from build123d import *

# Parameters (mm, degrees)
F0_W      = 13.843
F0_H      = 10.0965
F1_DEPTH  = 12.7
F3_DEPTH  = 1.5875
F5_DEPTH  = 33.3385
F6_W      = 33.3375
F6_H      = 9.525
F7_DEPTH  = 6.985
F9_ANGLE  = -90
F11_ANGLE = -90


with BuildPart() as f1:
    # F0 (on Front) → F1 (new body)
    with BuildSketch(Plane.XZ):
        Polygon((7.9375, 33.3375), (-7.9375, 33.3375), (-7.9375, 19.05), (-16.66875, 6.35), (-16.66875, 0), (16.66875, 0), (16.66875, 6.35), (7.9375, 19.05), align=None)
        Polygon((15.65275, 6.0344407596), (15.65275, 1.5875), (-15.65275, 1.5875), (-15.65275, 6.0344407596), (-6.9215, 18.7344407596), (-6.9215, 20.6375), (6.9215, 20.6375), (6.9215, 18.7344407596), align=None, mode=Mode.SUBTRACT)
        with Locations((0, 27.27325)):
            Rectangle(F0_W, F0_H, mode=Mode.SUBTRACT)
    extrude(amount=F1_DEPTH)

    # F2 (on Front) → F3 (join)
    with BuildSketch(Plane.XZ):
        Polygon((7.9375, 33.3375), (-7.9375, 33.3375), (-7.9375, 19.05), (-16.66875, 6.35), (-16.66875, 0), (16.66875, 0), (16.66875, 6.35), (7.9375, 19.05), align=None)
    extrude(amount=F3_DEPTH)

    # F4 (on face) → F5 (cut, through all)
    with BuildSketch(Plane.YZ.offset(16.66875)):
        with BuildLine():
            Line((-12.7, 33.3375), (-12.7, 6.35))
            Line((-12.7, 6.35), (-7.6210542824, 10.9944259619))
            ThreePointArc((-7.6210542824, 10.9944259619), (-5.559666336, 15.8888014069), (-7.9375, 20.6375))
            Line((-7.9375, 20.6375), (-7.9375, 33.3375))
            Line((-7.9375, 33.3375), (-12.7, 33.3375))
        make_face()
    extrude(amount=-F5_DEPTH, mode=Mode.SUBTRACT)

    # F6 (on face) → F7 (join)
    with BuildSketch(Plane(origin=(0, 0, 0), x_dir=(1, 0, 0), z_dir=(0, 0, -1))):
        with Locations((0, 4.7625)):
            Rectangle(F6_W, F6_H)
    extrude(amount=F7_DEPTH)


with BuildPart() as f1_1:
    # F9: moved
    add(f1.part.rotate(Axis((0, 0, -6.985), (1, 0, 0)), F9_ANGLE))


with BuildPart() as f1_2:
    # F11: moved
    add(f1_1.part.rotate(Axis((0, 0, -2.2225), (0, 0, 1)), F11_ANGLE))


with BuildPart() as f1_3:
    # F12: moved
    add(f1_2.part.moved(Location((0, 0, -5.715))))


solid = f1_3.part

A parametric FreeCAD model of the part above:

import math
import FreeCAD as App
import Part
import Sketcher
Q = App.Units.Quantity

doc = App.newDocument("Part")
body = doc.addObject("PartDesign::Body", "Body")

sketch1 = doc.addObject("Sketcher::SketchObject", "Sketch")
body.addObject(sketch1)
sketch1.AttachmentSupport = (doc.XZ_Plane, [""])
sketch1.MapMode = "FlatFace"
sketch1.addGeometry(Part.LineSegment(App.Vector(7.9, 33.3, 0), App.Vector(-7.9, 33.3, 0)), False)
sketch1.addGeometry(Part.LineSegment(App.Vector(-7.9, 33.3, 0), App.Vector(-7.9, 19.1, 0)), False)
sketch1.addGeometry(Part.LineSegment(App.Vector(-7.9, 19.1, 0), App.Vector(-16.7, 6.3, 0)), False)
sketch1.addGeometry(Part.LineSegment(App.Vector(-16.7, 6.3, 0), App.Vector(-16.7, 0, 0)), False)
sketch1.addGeometry(Part.LineSegment(App.Vector(-16.7, 0, 0), App.Vector(16.7, 0, 0)), False)
sketch1.addGeometry(Part.LineSegment(App.Vector(16.7, 0, 0), App.Vector(16.7, 6.3, 0)), False)
sketch1.addGeometry(Part.LineSegment(App.Vector(16.7, 6.3, 0), App.Vector(7.9, 19.1, 0)), False)
sketch1.addGeometry(Part.LineSegment(App.Vector(7.9, 19.1, 0), App.Vector(7.9, 33.3, 0)), False)
sketch1.addGeometry(Part.LineSegment(App.Vector(6.9, 18.7, 0), App.Vector(15.7, 6, 0)), False)
sketch1.addGeometry(Part.LineSegment(App.Vector(15.7, 6, 0), App.Vector(15.7, 1.6, 0)), False)
sketch1.addGeometry(Part.LineSegment(App.Vector(15.7, 1.6, 0), App.Vector(-15.7, 1.6, 0)), False)
sketch1.addGeometry(Part.LineSegment(App.Vector(-15.7, 1.6, 0), App.Vector(-15.7, 6, 0)), False)
sketch1.addGeometry(Part.LineSegment(App.Vector(-15.7, 6, 0), App.Vector(-6.9, 18.7, 0)), False)
sketch1.addGeometry(Part.LineSegment(App.Vector(-6.9, 18.7, 0), App.Vector(-6.9, 20.6, 0)), False)
sketch1.addGeometry(Part.LineSegment(App.Vector(-6.9, 20.6, 0), App.Vector(6.9, 20.6, 0)), False)
sketch1.addGeometry(Part.LineSegment(App.Vector(6.9, 20.6, 0), App.Vector(6.9, 18.7, 0)), False)
sketch1.addGeometry(Part.LineSegment(App.Vector(6.9, 22.2, 0), App.Vector(-6.9, 22.2, 0)), False)
sketch1.addGeometry(Part.LineSegment(App.Vector(-6.9, 22.2, 0), App.Vector(-6.9, 32.3, 0)), False)
sketch1.addGeometry(Part.LineSegment(App.Vector(-6.9, 32.3, 0), App.Vector(6.9, 32.3, 0)), False)
sketch1.addGeometry(Part.LineSegment(App.Vector(6.9, 32.3, 0), App.Vector(6.9, 22.2, 0)), False)
sketch1.addConstraint(Sketcher.Constraint("Coincident", 0, 2, 1, 1))
sketch1.addConstraint(Sketcher.Constraint("Coincident", 1, 2, 2, 1))
sketch1.addConstraint(Sketcher.Constraint("Coincident", 2, 2, 3, 1))
sketch1.addConstraint(Sketcher.Constraint("Coincident", 3, 2, 4, 1))
sketch1.addConstraint(Sketcher.Constraint("Coincident", 4, 2, 5, 1))
sketch1.addConstraint(Sketcher.Constraint("Coincident", 5, 2, 6, 1))
sketch1.addConstraint(Sketcher.Constraint("Coincident", 6, 2, 7, 1))
sketch1.addConstraint(Sketcher.Constraint("Coincident", 7, 2, 0, 1))
sketch1.addConstraint(Sketcher.Constraint("Coincident", 8, 2, 9, 1))
sketch1.addConstraint(Sketcher.Constraint("Coincident", 9, 2, 10, 1))
sketch1.addConstraint(Sketcher.Constraint("Coincident", 10, 2, 11, 1))
sketch1.addConstraint(Sketcher.Constraint("Coincident", 11, 2, 12, 1))
sketch1.addConstraint(Sketcher.Constraint("Coincident", 12, 2, 13, 1))
sketch1.addConstraint(Sketcher.Constraint("Coincident", 13, 2, 14, 1))
sketch1.addConstraint(Sketcher.Constraint("Coincident", 14, 2, 15, 1))
sketch1.addConstraint(Sketcher.Constraint("Coincident", 15, 2, 8, 1))
sketch1.addConstraint(Sketcher.Constraint("Coincident", 16, 2, 17, 1))
sketch1.addConstraint(Sketcher.Constraint("Coincident", 17, 2, 18, 1))
sketch1.addConstraint(Sketcher.Constraint("Coincident", 18, 2, 19, 1))
sketch1.addConstraint(Sketcher.Constraint("Coincident", 19, 2, 16, 1))
sketch1.addConstraint(Sketcher.Constraint("Horizontal", 0))
sketch1.addConstraint(Sketcher.Constraint("Vertical", 1))
sketch1.addConstraint(Sketcher.Constraint("Vertical", 3))
sketch1.addConstraint(Sketcher.Constraint("Horizontal", 4))
sketch1.addConstraint(Sketcher.Constraint("Vertical", 5))
sketch1.addConstraint(Sketcher.Constraint("Vertical", 7))
sketch1.addConstraint(Sketcher.Constraint("Vertical", 9))
sketch1.addConstraint(Sketcher.Constraint("Horizontal", 10))
sketch1.addConstraint(Sketcher.Constraint("Vertical", 11))
sketch1.addConstraint(Sketcher.Constraint("Vertical", 13))
sketch1.addConstraint(Sketcher.Constraint("Horizontal", 14))
sketch1.addConstraint(Sketcher.Constraint("Vertical", 15))
sketch1.addConstraint(Sketcher.Constraint("Horizontal", 16))
sketch1.addConstraint(Sketcher.Constraint("Vertical", 17))
sketch1.addConstraint(Sketcher.Constraint("Horizontal", 18))
sketch1.addConstraint(Sketcher.Constraint("Vertical", 19))
sketch1.addConstraint(Sketcher.Constraint("Symmetric", 3, 2, 4, 2, -1, 1))
sketch1.addConstraint(Sketcher.Constraint("Symmetric", 1, 2, 6, 2, -2))
sketch1.addConstraint(Sketcher.Constraint("Symmetric", 8, 2, 11, 2, -2))
sketch1.addConstraint(Sketcher.Constraint("Symmetric", 12, 2, 15, 2, -2))
sketch1.addConstraint(Sketcher.Constraint("Parallel", 6, 8))
sketch1.addConstraint(Sketcher.Constraint("Parallel", 2, 12))
sketch1.addConstraint(Sketcher.Constraint("Vertical", 13, 2, 16, 2))
sketch1.addConstraint(Sketcher.Constraint("Vertical", 15, 2, 18, 2))
sketch1.addConstraint(Sketcher.Constraint("Equal", 6, 8))
sketch1.addConstraint(Sketcher.Constraint("DistanceY", 3, 2, 3, 1, Q("0.25 in")))
sketch1.addConstraint(Sketcher.Constraint("DistanceY", 2, 2, 1, 2, Q("0.5 in")))
sketch1.addConstraint(Sketcher.Constraint("DistanceY", 13, 2, 0, 2, Q("0.5 in")))
sketch1.addConstraint(Sketcher.Constraint("DistanceX", 0, 2, 0, 1, Q("0.625 in")))
sketch1.addConstraint(Sketcher.Constraint("DistanceX", 4, 1, 4, 2, Q("1.3125 in")))
sketch1.addConstraint(Sketcher.Constraint("DistanceX", 14, 1, 14, 2, Q("0.545 in")))
sketch1.addConstraint(Sketcher.Constraint("DistanceY", 1, 2, 1, 1, Q("0.5625 in")))
sketch1.addConstraint(Sketcher.Constraint("DistanceY", 17, 2, 0, 2, Q("0.04 in")))
sketch1.addConstraint(Sketcher.Constraint("DistanceY", 17, 1, 17, 2, Q("0.3975 in")))
sketch1.addConstraint(Sketcher.Constraint("DistanceY", -1, 1, 9, 2, Q("0.0625 in")))
sketch1.addConstraint(Sketcher.Constraint("DistanceY", 9, 2, 9, 1, Q("4.446941 mm")))
pad1 = doc.addObject("PartDesign::Pad", "Pad")
body.addObject(pad1)
pad1.Profile = sketch1
pad1.Length = Q("0.5 in")

sketch2 = doc.addObject("Sketcher::SketchObject", "Sketch001")
body.addObject(sketch2)
sketch2.AttachmentSupport = (doc.XZ_Plane, [""])
sketch2.MapMode = "FlatFace"
sketch2.addGeometry(Part.LineSegment(App.Vector(8, 33, 0), App.Vector(-8, 33, 0)), False)
sketch2.addGeometry(Part.LineSegment(App.Vector(-8, 33, 0), App.Vector(-8, 19, 0)), False)
sketch2.addGeometry(Part.LineSegment(App.Vector(-8, 19, 0), App.Vector(-17, 6, 0)), False)
sketch2.addGeometry(Part.LineSegment(App.Vector(-17, 6, 0), App.Vector(-17, 0, 0)), False)
sketch2.addGeometry(Part.LineSegment(App.Vector(-17, 0, 0), App.Vector(17, 0, 0)), False)
sketch2.addGeometry(Part.LineSegment(App.Vector(17, 0, 0), App.Vector(17, 6, 0)), False)
sketch2.addGeometry(Part.LineSegment(App.Vector(17, 6, 0), App.Vector(8, 19, 0)), False)
sketch2.addGeometry(Part.LineSegment(App.Vector(8, 19, 0), App.Vector(8, 33, 0)), False)
sketch2.addConstraint(Sketcher.Constraint("Coincident", 0, 2, 1, 1))
sketch2.addConstraint(Sketcher.Constraint("Coincident", 1, 2, 2, 1))
sketch2.addConstraint(Sketcher.Constraint("Coincident", 2, 2, 3, 1))
sketch2.addConstraint(Sketcher.Constraint("Coincident", 3, 2, 4, 1))
sketch2.addConstraint(Sketcher.Constraint("Coincident", 4, 2, 5, 1))
sketch2.addConstraint(Sketcher.Constraint("Coincident", 5, 2, 6, 1))
sketch2.addConstraint(Sketcher.Constraint("Coincident", 6, 2, 7, 1))
sketch2.addConstraint(Sketcher.Constraint("Coincident", 7, 2, 0, 1))
sketch2.addConstraint(Sketcher.Constraint("Horizontal", 0))
sketch2.addConstraint(Sketcher.Constraint("Vertical", 1))
sketch2.addConstraint(Sketcher.Constraint("Vertical", 3))
sketch2.addConstraint(Sketcher.Constraint("Horizontal", 4))
sketch2.addConstraint(Sketcher.Constraint("Vertical", 5))
sketch2.addConstraint(Sketcher.Constraint("Vertical", 7))
sketch2.addConstraint(Sketcher.Constraint("Symmetric", 3, 2, 4, 2, -1, 1))
sketch2.addConstraint(Sketcher.Constraint("Symmetric", 1, 2, 6, 2, -2))
sketch2.addConstraint(Sketcher.Constraint("Horizontal", 2, 2, 5, 2))
sketch2.addConstraint(Sketcher.Constraint("DistanceY", 3, 2, 3, 1, Q("0.25 in")))
sketch2.addConstraint(Sketcher.Constraint("DistanceY", 2, 2, 1, 2, Q("0.5 in")))
sketch2.addConstraint(Sketcher.Constraint("DistanceX", 0, 2, 0, 1, Q("0.625 in")))
sketch2.addConstraint(Sketcher.Constraint("DistanceX", 4, 1, 4, 2, Q("1.3125 in")))
sketch2.addConstraint(Sketcher.Constraint("DistanceY", 1, 2, 1, 1, Q("0.5625 in")))
pad2 = doc.addObject("PartDesign::Pad", "Pad001")
body.addObject(pad2)
pad2.Profile = sketch2
pad2.Length = Q("0.0625 in")

sketch3 = doc.addObject("Sketcher::SketchObject", "Sketch002")
body.addObject(sketch3)
sketch3.AttachmentSupport = (doc.YZ_Plane, [""])
sketch3.MapMode = "FlatFace"
sketch3.AttachmentOffset = App.Placement(App.Vector(0, 0, 0.65625 * 25.4), App.Rotation())
sketch3.addGeometry(Part.LineSegment(App.Vector(-12.7, 33.3, 0), App.Vector(-12.7, 6.3, 0)), False)
sketch3.addGeometry(Part.LineSegment(App.Vector(-12.7, 6.3, 0), App.Vector(-7.6, 11, 0)), False)
sketch3.addGeometry(Part.ArcOfCircle(Part.Circle(App.Vector(-11.9, 15.7, 0), App.Vector(0, 0, 1), 6.3), math.radians(-48), math.radians(51)), False)
sketch3.addGeometry(Part.LineSegment(App.Vector(-7.9, 20.6, 0), App.Vector(-7.9, 33.3, 0)), False)
sketch3.addGeometry(Part.LineSegment(App.Vector(-7.9, 33.3, 0), App.Vector(-12.7, 33.3, 0)), False)
sketch3.addConstraint(Sketcher.Constraint("Coincident", 0, 2, 1, 1))
sketch3.addConstraint(Sketcher.Constraint("Tangent", 1, 2, 2, 1))
sketch3.addConstraint(Sketcher.Constraint("Coincident", 2, 2, 3, 1))
sketch3.addConstraint(Sketcher.Constraint("Coincident", 3, 2, 4, 1))
sketch3.addConstraint(Sketcher.Constraint("Coincident", 4, 2, 0, 1))
sketch3.addConstraint(Sketcher.Constraint("Vertical", 0))
sketch3.addConstraint(Sketcher.Constraint("Vertical", 3))
sketch3.addConstraint(Sketcher.Constraint("Horizontal", 4))
sketch3.addConstraint(Sketcher.Constraint("Radius", 2, Q("0.25 in")))
sketch3.addConstraint(Sketcher.Constraint("DistanceY", 3, 1, 3, 2, Q("0.5 in")))
sketch3.addConstraint(Sketcher.Constraint("DistanceX", 0, 2, -1, 1, Q("0.5 in")))
sketch3.addConstraint(Sketcher.Constraint("DistanceX", 4, 2, 4, 1, Q("0.1875 in")))
sketch3.addConstraint(Sketcher.Constraint("DistanceY", 0, 2, 0, 1, Q("1.0625 in")))
sketch3.addConstraint(Sketcher.Constraint("DistanceY", -1, 1, 0, 2, Q("0.25 in")))
sketch3.addConstraint(Sketcher.Constraint("DistanceX", 2, 3, -1, 1, Q("0.46875 in")))
pocket1 = doc.addObject("PartDesign::Pocket", "Pocket")
body.addObject(pocket1)
pocket1.Profile = sketch3
pocket1.Type = "ThroughAll"

sketch4 = doc.addObject("Sketcher::SketchObject", "Sketch003")
body.addObject(sketch4)
sketch4.AttachmentSupport = (doc.XY_Plane, [""])
sketch4.MapMode = "FlatFace"
sketch4.addGeometry(Part.LineSegment(App.Vector(-17, -10, 0), App.Vector(-17, 0, 0)), False)
sketch4.addGeometry(Part.LineSegment(App.Vector(-17, 0, 0), App.Vector(17, 0, 0)), False)
sketch4.addGeometry(Part.LineSegment(App.Vector(17, 0, 0), App.Vector(17, -10, 0)), False)
sketch4.addGeometry(Part.LineSegment(App.Vector(17, -10, 0), App.Vector(-17, -10, 0)), False)
sketch4.addConstraint(Sketcher.Constraint("Coincident", 0, 2, 1, 1))
sketch4.addConstraint(Sketcher.Constraint("Coincident", 1, 2, 2, 1))
sketch4.addConstraint(Sketcher.Constraint("Coincident", 2, 2, 3, 1))
sketch4.addConstraint(Sketcher.Constraint("Coincident", 3, 2, 0, 1))
sketch4.addConstraint(Sketcher.Constraint("Vertical", 0))
sketch4.addConstraint(Sketcher.Constraint("Horizontal", 1))
sketch4.addConstraint(Sketcher.Constraint("Vertical", 2))
sketch4.addConstraint(Sketcher.Constraint("Horizontal", 3))
sketch4.addConstraint(Sketcher.Constraint("Symmetric", 0, 2, 1, 2, -1, 1))
sketch4.addConstraint(Sketcher.Constraint("DistanceX", 1, 1, 1, 2, Q("1.3125 in")))
sketch4.addConstraint(Sketcher.Constraint("DistanceY", 0, 1, 0, 2, Q("0.375 in")))
pad3 = doc.addObject("PartDesign::Pad", "Pad002")
body.addObject(pad3)
pad3.Profile = sketch4
pad3.Length = Q("0.275 in")
pad3.Reversed = True
body2 = doc.addObject("PartDesign::Body", "Body001")
doc.recompute()

body.Placement = App.Placement(App.Vector(0, 6.985, -6.985), App.Rotation(App.Vector(1, 0, 0), 270))
boolean = doc.addObject("PartDesign::Boolean", "Boolean")
body2.addObject(boolean)
boolean.Type = "Fuse"
boolean.addObjects([body])
body3 = doc.addObject("PartDesign::Body", "Body002")
doc.recompute()

body2.Placement = App.Placement(App.Vector(0, 0, 0), App.Rotation(App.Vector(0, 0, 1), 270))
boolean2 = doc.addObject("PartDesign::Boolean", "Boolean001")
body3.addObject(boolean2)
boolean2.Type = "Fuse"
boolean2.addObjects([body2])
body4 = doc.addObject("PartDesign::Body", "Body003")
doc.recompute()

body3.Placement = App.Placement(App.Vector(0, 0, -5.715), App.Rotation(App.Vector(0, 0, 1), 0))
boolean3 = doc.addObject("PartDesign::Boolean", "Boolean002")
body4.addObject(boolean3)
boolean3.Type = "Fuse"
boolean3.addObjects([body3])

doc.recompute()
